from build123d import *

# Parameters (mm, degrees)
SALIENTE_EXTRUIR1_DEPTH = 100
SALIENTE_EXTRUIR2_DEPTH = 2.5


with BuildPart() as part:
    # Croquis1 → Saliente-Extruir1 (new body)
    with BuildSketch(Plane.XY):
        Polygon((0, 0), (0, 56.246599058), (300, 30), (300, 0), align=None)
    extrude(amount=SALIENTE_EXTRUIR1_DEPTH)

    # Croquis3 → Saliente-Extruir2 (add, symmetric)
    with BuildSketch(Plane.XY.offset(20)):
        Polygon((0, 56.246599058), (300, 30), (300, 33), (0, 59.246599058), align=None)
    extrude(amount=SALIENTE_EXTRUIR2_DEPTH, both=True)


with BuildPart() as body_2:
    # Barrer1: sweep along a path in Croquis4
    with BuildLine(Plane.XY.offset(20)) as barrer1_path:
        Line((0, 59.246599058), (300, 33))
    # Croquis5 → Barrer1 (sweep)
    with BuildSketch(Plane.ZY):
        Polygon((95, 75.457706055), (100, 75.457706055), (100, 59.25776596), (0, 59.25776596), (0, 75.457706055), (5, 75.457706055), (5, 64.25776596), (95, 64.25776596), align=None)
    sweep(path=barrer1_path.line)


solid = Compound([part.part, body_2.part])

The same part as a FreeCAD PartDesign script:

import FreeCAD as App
import Part
import Sketcher
from FreeCAD import Vector
Q = App.Units.Quantity


def add_polygon(sketch, points):
    """Adds a closed chain of lines whose ends are joined by coincident constraints."""
    first, n = sketch.GeometryCount, len(points)
    for a, b in zip(points, points[1:] + points[:1]):
        sketch.addGeometry(Part.LineSegment(App.Vector(*a, 0), App.Vector(*b, 0)), False)
    for i in range(n):
        sketch.addConstraint(Sketcher.Constraint("Coincident", first + i, 2, first + (i + 1) % n, 1))

doc = App.newDocument("Part")
body = doc.addObject("PartDesign::Body", "Body")

# Sketch on XY plane
sketch1 = body.newObject("Sketcher::SketchObject", "Sketch")
sketch1.AttachmentSupport = (doc.getObject("XY_Plane"), [""])
sketch1.MapMode = "FlatFace"
add_polygon(sketch1, [(0, 56), (0, 0), (300, 0), (300, 30)])  # lines 0-3
sketch1.addConstraint([
    Sketcher.Constraint("Vertical", 0),
    Sketcher.Constraint("Horizontal", 1),
    Sketcher.Constraint("Vertical", 2),
    Sketcher.Constraint("Coincident", 0, 2, -1, 1),
    Sketcher.Constraint("DistanceX", 1, 1, 1, 2, Q("300 mm")),
    Sketcher.Constraint("DistanceY", 2, 1, 2, 2, Q("30 mm")),
    Sketcher.Constraint("Angle", 3, Q("175 deg")),
])
pad1 = body.newObject("PartDesign::Pad", "Pad")
pad1.Profile = sketch1
pad1.Length = 100

# Sketch on XY plane
sketch2 = body.newObject("Sketcher::SketchObject", "Sketch001")
sketch2.AttachmentSupport = (doc.getObject("XY_Plane"), [""])
sketch2.MapMode = "FlatFace"
sketch2.AttachmentOffset = App.Placement(Vector(0, 0, 20), App.Rotation())
add_polygon(sketch2, [(0, 56.2), (300, 30), (300, 33), (0, 59.2)])  # lines 0-3
sketch2.addConstraint([
    Sketcher.Constraint("Vertical", 1),
    Sketcher.Constraint("Vertical", 3),
    Sketcher.Constraint("PointOnObject", 2, 2, -2),
    Sketcher.Constraint("Parallel", 0, 2),
    Sketcher.Constraint("DistanceY", 1, 1, 1, 2, Q("3 mm")),
    Sketcher.Constraint("Angle", 0, Q("-5 deg")),
    Sketcher.Constraint("DistanceX", -1, 1, 0, 2, Q("300 mm")),
    Sketcher.Constraint("DistanceY", -1, 1, 0, 2, Q("30 mm")),
])
pad2 = body.newObject("PartDesign::Pad", "Pad001")
pad2.Profile = sketch2
pad2.Length = 5
pad2.Midplane = True
body2 = doc.addObject("PartDesign::Body", "Body001")

# Sketch on YZ plane
sketch3 = body2.newObject("Sketcher::SketchObject", "Sketch002")
sketch3.AttachmentSupport = (doc.getObject("YZ_Plane001"), [""])
sketch3.MapMode = "FlatFace"
add_polygon(sketch3, [(75, 100), (75, 95), (64, 95), (64, 5), (75, 5), (75, 0), (59, 0), (59, 100)])  # lines 0-7
sketch3.addConstraint([
    Sketcher.Constraint("Vertical", 0),
    Sketcher.Constraint("Horizontal", 1),
    Sketcher.Constraint("Vertical", 2),
    Sketcher.Constraint("Horizontal", 3),
    Sketcher.Constraint("Vertical", 4),
    Sketcher.Constraint("Horizontal", 5),
    Sketcher.Constraint("Vertical", 6),
    Sketcher.Constraint("Horizontal", 7),
    Sketcher.Constraint("PointOnObject", 4, 2, -1),
    Sketcher.Constraint("Vertical", 0, 2, 3, 2),
    Sketcher.Constraint("Equal", 0, 4),
    Sketcher.Constraint("DistanceY", 0, 2, 0, 1, Q("5 mm")),
    Sketcher.Constraint("DistanceY", 2, 2, 2, 1, Q("90 mm")),
    Sketcher.Constraint("DistanceX", 5, 2, 2, 2, Q("5 mm")),
    Sketcher.Constraint("DistanceX", 1, 2, 1, 1, Q("11.19994 mm")),
    Sketcher.Constraint("DistanceX", -1, 1, 0, 2, Q("75.457706 mm")),
])

# Sketch on an angled plane
sketch4 = body2.newObject("Sketcher::SketchObject", "Sketch003")
sketch4.Placement = App.Placement(Vector(5.144032, 58.796555, 0), App.Rotation(Vector(0.996194698, -0.087155743, 0), Vector(0, 0, 1), Vector(-0.087155743, -0.996194698, 0), "ZXY"))
sketch4.addGeometry(Part.LineSegment(Vector(-5, 20, 0), Vector(296, 20, 0)), False)
sketch4.addConstraint([
    Sketcher.Constraint("Horizontal", 0),
    Sketcher.Constraint("DistanceY", -1, 1, 0, 1, Q("20 mm")),
    Sketcher.Constraint("DistanceX", 0, 1, 0, 2, Q("301.145951 mm")),
    Sketcher.Constraint("DistanceX", 0, 1, -1, 1, Q("5.163681 mm")),
])
doc.recompute()

additivepipe = body2.newObject("PartDesign::AdditivePipe", "AdditivePipe")
additivepipe.Profile = sketch3
additivepipe.Spine = (sketch4, ["Edge1"])

doc.recompute()
